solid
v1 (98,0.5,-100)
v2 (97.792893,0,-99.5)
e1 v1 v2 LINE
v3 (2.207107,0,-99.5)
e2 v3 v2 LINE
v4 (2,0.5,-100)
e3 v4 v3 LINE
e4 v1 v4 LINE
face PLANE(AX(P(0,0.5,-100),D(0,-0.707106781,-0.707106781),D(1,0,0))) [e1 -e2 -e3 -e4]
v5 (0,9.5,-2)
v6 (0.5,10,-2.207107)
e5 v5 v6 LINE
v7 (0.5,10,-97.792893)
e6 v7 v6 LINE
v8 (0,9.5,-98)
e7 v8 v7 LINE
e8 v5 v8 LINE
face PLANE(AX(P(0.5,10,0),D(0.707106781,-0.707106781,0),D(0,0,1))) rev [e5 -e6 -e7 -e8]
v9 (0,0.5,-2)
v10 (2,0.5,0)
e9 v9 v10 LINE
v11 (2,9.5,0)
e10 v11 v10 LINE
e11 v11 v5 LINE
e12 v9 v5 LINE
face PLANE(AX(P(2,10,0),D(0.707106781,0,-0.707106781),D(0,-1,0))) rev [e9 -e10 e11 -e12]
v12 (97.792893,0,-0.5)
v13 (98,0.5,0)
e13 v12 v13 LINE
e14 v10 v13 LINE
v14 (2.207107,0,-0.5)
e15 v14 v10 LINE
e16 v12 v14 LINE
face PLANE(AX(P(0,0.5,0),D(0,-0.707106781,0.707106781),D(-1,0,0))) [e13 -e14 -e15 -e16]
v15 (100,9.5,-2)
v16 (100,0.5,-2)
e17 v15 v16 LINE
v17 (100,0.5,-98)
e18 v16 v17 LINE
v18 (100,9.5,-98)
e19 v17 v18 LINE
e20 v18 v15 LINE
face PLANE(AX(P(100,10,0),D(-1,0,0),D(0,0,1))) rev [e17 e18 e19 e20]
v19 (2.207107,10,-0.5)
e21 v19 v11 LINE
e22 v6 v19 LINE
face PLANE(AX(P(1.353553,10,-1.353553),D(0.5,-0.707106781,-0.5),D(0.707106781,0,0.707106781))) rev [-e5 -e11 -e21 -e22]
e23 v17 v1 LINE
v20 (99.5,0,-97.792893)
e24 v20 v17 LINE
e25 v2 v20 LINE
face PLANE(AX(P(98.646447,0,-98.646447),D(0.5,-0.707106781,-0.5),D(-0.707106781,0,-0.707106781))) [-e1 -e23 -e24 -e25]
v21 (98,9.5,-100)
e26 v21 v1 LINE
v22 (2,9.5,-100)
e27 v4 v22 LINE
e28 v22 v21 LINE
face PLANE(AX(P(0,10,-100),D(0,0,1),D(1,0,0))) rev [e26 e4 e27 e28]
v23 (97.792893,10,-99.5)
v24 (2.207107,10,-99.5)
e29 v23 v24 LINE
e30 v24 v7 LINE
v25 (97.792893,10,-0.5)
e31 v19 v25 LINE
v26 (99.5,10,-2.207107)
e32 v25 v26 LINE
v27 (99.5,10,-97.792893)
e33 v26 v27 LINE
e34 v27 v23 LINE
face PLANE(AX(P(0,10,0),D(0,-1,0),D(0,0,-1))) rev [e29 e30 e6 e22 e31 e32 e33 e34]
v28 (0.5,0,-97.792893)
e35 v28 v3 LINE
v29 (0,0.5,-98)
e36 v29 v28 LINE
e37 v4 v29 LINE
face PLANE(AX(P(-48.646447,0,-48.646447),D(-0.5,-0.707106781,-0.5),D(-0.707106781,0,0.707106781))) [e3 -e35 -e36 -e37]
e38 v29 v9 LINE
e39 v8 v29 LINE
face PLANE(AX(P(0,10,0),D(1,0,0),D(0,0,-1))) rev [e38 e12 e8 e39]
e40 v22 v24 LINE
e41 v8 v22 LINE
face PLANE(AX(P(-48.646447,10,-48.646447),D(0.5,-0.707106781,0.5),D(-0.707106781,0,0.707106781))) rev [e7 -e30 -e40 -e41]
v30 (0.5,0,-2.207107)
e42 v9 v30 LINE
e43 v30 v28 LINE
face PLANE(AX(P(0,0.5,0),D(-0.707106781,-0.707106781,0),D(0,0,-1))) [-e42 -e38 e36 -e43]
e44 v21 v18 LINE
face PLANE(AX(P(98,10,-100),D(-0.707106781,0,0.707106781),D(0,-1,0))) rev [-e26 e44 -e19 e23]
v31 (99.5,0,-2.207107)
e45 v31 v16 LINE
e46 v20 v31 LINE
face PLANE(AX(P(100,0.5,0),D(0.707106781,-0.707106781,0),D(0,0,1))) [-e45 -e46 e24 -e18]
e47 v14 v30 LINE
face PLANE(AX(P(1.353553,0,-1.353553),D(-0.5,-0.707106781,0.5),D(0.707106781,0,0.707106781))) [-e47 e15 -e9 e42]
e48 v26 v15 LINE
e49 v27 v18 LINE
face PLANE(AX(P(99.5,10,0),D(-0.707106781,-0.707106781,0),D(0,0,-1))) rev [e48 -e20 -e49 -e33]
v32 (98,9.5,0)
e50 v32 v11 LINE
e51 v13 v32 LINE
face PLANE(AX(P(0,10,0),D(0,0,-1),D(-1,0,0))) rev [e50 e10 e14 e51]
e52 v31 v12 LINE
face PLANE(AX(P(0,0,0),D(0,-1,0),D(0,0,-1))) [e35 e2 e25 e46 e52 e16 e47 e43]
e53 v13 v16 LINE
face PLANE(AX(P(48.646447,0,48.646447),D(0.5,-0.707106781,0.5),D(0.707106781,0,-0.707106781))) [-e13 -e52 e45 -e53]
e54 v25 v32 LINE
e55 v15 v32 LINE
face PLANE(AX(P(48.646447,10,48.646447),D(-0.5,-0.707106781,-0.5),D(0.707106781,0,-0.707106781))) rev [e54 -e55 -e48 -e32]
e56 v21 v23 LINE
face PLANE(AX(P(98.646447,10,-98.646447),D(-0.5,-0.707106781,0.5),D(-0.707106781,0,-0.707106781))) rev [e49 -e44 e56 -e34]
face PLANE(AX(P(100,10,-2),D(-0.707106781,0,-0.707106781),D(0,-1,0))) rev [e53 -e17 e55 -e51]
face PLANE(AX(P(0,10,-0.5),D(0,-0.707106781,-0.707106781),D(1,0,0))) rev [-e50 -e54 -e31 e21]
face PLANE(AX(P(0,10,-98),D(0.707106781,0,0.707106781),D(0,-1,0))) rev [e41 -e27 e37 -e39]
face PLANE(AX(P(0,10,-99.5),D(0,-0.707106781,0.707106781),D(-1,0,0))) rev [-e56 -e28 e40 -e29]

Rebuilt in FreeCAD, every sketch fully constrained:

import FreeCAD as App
import Part
import Sketcher

V = App.Vector


def edges_at(feature, points):
    """Names of the edges that pass closest to the given points."""
    edges = feature.Shape.Edges
    near = lambda p: min(range(len(edges)), key=lambda i: edges[i].distToShape(Part.Vertex(*p))[0])
    return sorted({f"Edge{near(p) + 1}" for p in points})


def add_polygon(sketch, points):
    """Adds a closed chain of lines whose ends are joined by coincident constraints."""
    first, n = sketch.GeometryCount, len(points)
    for a, b in zip(points, points[1:] + points[:1]):
        sketch.addGeometry(Part.LineSegment(App.Vector(*a, 0), App.Vector(*b, 0)), False)
    for i in range(n):
        sketch.addConstraint(Sketcher.Constraint("Coincident", first + i, 2, first + (i + 1) % n, 1))

doc = App.newDocument("Part")
body = doc.addObject("PartDesign::Body", "Body")

sketch1 = doc.addObject("Sketcher::SketchObject", "Sketch")
body.addObject(sketch1)
sketch1.AttachmentSupport = (doc.XZ_Plane, [""])
sketch1.MapMode = "FlatFace"
add_polygon(sketch1, [(0, -100), (0, 0), (100, 0), (100, -100)])
sketch1.addConstraint([
    Sketcher.Constraint("Vertical", 0),
    Sketcher.Constraint("Horizontal", 1),
    Sketcher.Constraint("Vertical", 2),
    Sketcher.Constraint("Horizontal", 3),
    Sketcher.Constraint("Coincident", 0, 2, -1, 1),
    Sketcher.Constraint("Equal", 3, 0),
    Sketcher.Constraint("DistanceX", 1, 1, 1, 2, 100.0),
])
pad1 = doc.addObject("PartDesign::Pad", "Pad")
body.addObject(pad1)
pad1.Profile = sketch1
pad1.Length = 10
pad1.Reversed = True
doc.recompute()

chamfer = doc.addObject("PartDesign::Chamfer", "Chamfer")
body.addObject(chamfer)
chamfer.Base = (pad1, edges_at(pad1, [
    (0, 5, -100),
    (100, 5, -100),
    (100, 5, 0),
    (0, 5, 0),
]))
chamfer.Size = 2
doc.recompute()

chamfer2 = doc.addObject("PartDesign::Chamfer", "Chamfer001")
body.addObject(chamfer2)
chamfer2.Base = (chamfer, edges_at(chamfer, [
    (0, 0, -50),
    (0, 10, -50),
    (50, 0, -100),
    (100, 0, -50),
    (50, 0, 0),
    (99, 0, -1),
    (1, 0, -1),
    (99, 0, -99),
    (1, 0, -99),
    (50, 10, -100),
    (50, 10, 0),
    (100, 10, -50),
    (99, 10, -1),
    (1, 10, -1),
    (99, 10, -99),
    (1, 10, -99),
]))
chamfer2.Size = 0.5

doc.recompute()
